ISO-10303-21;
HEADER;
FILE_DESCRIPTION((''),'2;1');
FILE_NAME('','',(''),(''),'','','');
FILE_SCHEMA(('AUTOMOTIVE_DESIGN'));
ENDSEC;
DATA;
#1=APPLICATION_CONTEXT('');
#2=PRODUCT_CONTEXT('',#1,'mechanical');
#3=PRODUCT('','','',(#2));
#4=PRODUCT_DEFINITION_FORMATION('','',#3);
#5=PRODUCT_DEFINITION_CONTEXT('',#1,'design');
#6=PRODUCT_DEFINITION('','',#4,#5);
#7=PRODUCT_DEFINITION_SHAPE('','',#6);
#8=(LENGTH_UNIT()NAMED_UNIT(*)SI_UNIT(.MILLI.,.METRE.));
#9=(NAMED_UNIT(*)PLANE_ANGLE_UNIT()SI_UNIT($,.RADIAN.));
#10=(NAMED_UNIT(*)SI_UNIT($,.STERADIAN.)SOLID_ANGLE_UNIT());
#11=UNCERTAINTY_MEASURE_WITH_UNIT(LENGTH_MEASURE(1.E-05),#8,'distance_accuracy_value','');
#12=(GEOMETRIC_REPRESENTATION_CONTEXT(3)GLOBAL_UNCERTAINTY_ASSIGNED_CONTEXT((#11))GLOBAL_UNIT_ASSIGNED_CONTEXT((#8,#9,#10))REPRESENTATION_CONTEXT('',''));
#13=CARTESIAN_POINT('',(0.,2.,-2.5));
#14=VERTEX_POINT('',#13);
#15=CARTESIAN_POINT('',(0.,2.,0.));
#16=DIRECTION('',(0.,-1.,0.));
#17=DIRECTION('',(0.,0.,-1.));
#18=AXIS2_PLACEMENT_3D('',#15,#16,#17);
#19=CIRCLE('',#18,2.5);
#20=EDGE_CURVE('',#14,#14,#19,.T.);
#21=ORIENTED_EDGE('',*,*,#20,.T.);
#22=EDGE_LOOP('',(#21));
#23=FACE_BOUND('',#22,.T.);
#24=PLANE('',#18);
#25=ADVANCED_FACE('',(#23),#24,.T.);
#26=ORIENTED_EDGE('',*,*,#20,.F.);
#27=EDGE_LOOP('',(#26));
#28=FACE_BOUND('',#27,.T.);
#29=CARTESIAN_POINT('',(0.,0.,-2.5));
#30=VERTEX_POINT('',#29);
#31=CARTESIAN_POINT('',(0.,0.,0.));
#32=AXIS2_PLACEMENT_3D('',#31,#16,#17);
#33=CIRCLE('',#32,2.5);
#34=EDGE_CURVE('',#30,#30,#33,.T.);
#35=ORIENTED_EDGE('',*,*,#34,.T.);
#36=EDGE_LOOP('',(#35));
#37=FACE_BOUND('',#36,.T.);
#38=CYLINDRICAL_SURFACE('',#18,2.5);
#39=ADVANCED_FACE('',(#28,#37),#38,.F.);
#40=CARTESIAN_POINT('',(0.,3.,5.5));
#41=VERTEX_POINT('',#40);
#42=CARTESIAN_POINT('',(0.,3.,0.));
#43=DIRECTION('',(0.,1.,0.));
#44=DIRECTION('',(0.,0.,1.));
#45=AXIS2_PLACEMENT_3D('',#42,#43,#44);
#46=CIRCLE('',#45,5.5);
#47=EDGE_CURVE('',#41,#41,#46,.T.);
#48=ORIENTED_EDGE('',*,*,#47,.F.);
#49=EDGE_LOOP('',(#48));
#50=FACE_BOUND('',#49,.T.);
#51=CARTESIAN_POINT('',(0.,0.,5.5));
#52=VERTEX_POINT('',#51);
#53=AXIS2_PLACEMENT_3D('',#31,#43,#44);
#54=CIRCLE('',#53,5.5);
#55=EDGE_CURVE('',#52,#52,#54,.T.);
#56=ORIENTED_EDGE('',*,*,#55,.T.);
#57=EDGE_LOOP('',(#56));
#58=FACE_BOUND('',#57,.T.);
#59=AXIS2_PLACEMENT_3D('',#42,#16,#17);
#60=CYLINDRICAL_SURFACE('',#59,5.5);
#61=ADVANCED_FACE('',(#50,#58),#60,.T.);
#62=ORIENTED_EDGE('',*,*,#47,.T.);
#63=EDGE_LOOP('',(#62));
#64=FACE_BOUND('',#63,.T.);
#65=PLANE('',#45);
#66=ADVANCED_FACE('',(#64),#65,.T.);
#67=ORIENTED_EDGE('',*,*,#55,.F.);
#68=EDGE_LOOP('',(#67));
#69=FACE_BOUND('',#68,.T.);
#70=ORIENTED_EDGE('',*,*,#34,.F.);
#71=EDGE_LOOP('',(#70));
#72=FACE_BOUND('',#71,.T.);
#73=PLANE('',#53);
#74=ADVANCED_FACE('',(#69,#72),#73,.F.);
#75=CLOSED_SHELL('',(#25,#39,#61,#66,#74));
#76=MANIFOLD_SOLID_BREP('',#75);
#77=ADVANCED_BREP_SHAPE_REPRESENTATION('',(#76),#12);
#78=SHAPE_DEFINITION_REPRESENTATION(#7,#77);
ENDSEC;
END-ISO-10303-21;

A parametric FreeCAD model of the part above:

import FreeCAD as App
import Part
import Sketcher

V = App.Vector
Q = App.Units.Quantity

doc = App.newDocument("Part")
params = doc.addObject("Spreadsheet::Sheet", "Params")
for row, (alias, value) in enumerate([
    ("sketch1_diameter", "11 mm"),
    ("pad1_length", "3 mm"),
    ("sketch2_diameter", "5 mm"),
    ("pocket1_length", "2 mm"),
], start=1):
    params.set(f"A{row}", alias)
    params.set(f"B{row}", "=" + value)
    params.setAlias(f"B{row}", alias)

body = doc.addObject("PartDesign::Body", "Body")

sketch1 = body.newObject("Sketcher::SketchObject", "Sketch")
sketch1.AttachmentSupport = (doc.getObject("XZ_Plane"), [""])
sketch1.MapMode = "FlatFace"
sketch1.addGeometry(Part.Circle(V(0, 0, 0), V(0, 0, 1), 6), False)
sketch1.addConstraint(Sketcher.Constraint("Coincident", 0, 3, -1, 1))
sketch1.addConstraint(Sketcher.Constraint("Diameter", 0, Q("11 mm")))
sketch1.setExpression("Constraints[1]", "Params.sketch1_diameter")
pad1 = body.newObject("PartDesign::Pad", "Pad")
pad1.Profile = sketch1
pad1.setExpression("Length", "Params.pad1_length")
pad1.Reversed = True

sketch2 = body.newObject("Sketcher::SketchObject", "Sketch001")
sketch2.AttachmentSupport = (doc.getObject("XZ_Plane"), [""])
sketch2.MapMode = "FlatFace"
sketch2.addGeometry(Part.Circle(V(0, 0, 0), V(0, 0, 1), 2.5), False)
sketch2.addConstraint(Sketcher.Constraint("Coincident", 0, 3, -1, 1))
sketch2.addConstraint(Sketcher.Constraint("Diameter", 0, Q("5 mm")))
sketch2.setExpression("Constraints[1]", "Params.sketch2_diameter")
pocket1 = body.newObject("PartDesign::Pocket", "Pocket")
pocket1.Profile = sketch2
pocket1.setExpression("Length", "Params.pocket1_length")

doc.recompute()
